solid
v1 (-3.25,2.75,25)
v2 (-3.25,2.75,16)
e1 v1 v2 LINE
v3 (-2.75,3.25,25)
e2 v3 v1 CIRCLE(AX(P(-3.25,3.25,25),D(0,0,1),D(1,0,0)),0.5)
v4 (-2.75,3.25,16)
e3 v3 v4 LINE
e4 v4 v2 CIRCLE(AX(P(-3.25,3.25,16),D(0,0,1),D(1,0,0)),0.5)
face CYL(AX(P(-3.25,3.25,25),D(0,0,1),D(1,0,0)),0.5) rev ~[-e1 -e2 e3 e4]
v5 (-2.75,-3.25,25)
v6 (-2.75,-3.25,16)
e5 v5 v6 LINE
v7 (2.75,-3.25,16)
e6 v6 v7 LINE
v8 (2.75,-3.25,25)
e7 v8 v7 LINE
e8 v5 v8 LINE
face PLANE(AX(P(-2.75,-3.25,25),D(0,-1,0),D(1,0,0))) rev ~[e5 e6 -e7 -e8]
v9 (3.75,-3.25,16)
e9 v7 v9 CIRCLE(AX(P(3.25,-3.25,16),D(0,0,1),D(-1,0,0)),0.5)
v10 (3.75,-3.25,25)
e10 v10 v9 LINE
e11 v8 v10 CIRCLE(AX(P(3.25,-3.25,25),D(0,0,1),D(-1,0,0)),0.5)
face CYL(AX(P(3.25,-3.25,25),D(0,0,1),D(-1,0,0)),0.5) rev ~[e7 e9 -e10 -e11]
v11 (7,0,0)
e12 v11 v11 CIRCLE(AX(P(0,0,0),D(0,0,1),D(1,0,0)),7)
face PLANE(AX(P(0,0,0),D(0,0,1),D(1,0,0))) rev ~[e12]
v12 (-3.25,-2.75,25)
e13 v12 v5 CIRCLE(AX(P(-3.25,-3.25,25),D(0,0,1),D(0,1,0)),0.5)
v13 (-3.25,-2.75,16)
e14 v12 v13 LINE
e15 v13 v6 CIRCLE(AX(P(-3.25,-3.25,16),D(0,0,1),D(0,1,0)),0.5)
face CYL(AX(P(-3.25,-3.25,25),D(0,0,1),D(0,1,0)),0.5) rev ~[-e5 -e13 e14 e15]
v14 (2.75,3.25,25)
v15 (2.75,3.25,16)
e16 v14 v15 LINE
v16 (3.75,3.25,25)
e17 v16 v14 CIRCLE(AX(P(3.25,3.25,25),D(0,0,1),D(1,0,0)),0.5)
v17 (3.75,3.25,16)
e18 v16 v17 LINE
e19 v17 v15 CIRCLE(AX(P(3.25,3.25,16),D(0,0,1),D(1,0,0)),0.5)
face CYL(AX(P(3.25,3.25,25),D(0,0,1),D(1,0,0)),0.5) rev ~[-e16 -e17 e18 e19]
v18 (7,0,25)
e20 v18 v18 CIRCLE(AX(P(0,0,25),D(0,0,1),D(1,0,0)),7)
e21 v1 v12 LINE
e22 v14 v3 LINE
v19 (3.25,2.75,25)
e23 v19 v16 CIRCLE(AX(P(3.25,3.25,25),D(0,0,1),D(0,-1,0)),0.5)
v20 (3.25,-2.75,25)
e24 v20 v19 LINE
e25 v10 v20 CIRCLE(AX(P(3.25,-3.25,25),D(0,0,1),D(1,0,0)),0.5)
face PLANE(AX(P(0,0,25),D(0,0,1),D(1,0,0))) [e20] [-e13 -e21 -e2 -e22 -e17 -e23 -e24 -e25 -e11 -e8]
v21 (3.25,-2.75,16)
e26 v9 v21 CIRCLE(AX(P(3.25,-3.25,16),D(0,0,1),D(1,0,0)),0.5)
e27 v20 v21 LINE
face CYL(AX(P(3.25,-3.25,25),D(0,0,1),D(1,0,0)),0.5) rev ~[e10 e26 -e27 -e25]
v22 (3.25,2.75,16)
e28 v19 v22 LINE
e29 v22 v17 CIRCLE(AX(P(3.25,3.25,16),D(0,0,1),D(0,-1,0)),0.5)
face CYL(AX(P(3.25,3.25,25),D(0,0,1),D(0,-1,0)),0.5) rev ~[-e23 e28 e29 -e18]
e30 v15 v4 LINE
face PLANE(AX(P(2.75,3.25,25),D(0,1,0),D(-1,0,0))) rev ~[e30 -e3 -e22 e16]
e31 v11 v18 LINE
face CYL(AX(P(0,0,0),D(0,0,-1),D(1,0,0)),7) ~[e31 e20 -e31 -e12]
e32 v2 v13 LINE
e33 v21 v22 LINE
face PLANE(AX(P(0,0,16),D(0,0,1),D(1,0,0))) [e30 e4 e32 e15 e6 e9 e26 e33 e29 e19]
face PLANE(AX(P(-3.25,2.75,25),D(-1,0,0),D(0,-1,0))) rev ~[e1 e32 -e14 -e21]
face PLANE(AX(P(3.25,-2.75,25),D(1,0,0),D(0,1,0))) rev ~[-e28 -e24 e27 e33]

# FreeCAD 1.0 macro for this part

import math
import FreeCAD as App
import Part
import Sketcher

V = App.Vector
Q = App.Units.Quantity

doc = App.newDocument("Part")
body = doc.addObject("PartDesign::Body", "Body")

# Sketch on XY plane
sketch1 = body.newObject("Sketcher::SketchObject", "Sketch")
sketch1.AttachmentSupport = (doc.getObject("XY_Plane"), [""])
sketch1.MapMode = "FlatFace"
sketch1.addGeometry(Part.Circle(V(0, 0, 0), V(0, 0, 1), 7), False)
sketch1.addConstraint([
    Sketcher.Constraint("Coincident", 0, 3, -1, 1),
    Sketcher.Constraint("Diameter", 0, Q("14 mm")),
])
pad1 = body.newObject("PartDesign::Pad", "Pad")
pad1.Profile = sketch1
pad1.Length = 25

# Sketch on XY plane
sketch2 = body.newObject("Sketcher::SketchObject", "Sketch001")
sketch2.AttachmentSupport = (doc.getObject("XY_Plane"), [""])
sketch2.MapMode = "FlatFace"
sketch2.AttachmentOffset = App.Placement(V(0, 0, 25), App.Rotation())
sketch2.addGeometry([
    Part.ArcOfCircle(Part.Circle(V(-3.25, 3.25, 0), V(0, 0, 1), 0.5), math.radians(0), math.radians(270)),  # 0
    Part.LineSegment(V(-3.25, 2.75, 0), V(-3.25, -2.75, 0)),  # 1
    Part.ArcOfCircle(Part.Circle(V(-3.25, -3.25, 0), V(0, 0, 1), 0.5), math.radians(90), math.radians(360)),  # 2
    Part.LineSegment(V(-2.75, -3.25, 0), V(2.75, -3.25, 0)),  # 3
    Part.ArcOfCircle(Part.Circle(V(3.25, -3.25, 0), V(0, 0, 1), 0.5), math.radians(180), math.radians(360)),  # 4
    Part.ArcOfCircle(Part.Circle(V(3.25, -3.25, 0), V(0, 0, 1), 0.5), math.radians(0), math.radians(90)),  # 5
    Part.LineSegment(V(3.25, -2.75, 0), V(3.25, 2.75, 0)),  # 6
    Part.ArcOfCircle(Part.Circle(V(3.25, 3.25, 0), V(0, 0, 1), 0.5), math.radians(-90), math.radians(0)),  # 7
    Part.ArcOfCircle(Part.Circle(V(3.25, 3.25, 0), V(0, 0, 1), 0.5), math.radians(0), math.radians(180)),  # 8
    Part.LineSegment(V(2.75, 3.25, 0), V(-2.75, 3.25, 0)),  # 9
], False)
sketch2.addConstraint([
    Sketcher.Constraint("Coincident", 0, 2, 1, 1),
    Sketcher.Constraint("Coincident", 1, 2, 2, 1),
    Sketcher.Constraint("Coincident", 2, 2, 3, 1),
    Sketcher.Constraint("Coincident", 3, 2, 4, 1),
    Sketcher.Constraint("Tangent", 4, 2, 5, 1),
    Sketcher.Constraint("Coincident", 5, 2, 6, 1),
    Sketcher.Constraint("Coincident", 6, 2, 7, 1),
    Sketcher.Constraint("Tangent", 7, 2, 8, 1),
    Sketcher.Constraint("Coincident", 8, 2, 9, 1),
    Sketcher.Constraint("Coincident", 9, 2, 0, 1),
    Sketcher.Constraint("Vertical", 1),
    Sketcher.Constraint("Horizontal", 3),
    Sketcher.Constraint("Vertical", 6),
    Sketcher.Constraint("Horizontal", 9),
    Sketcher.Constraint("Equal", 0, 2),
    Sketcher.Constraint("Equal", 2, 4),
    Sketcher.Constraint("Equal", 4, 5),
    Sketcher.Constraint("Equal", 5, 7),
    Sketcher.Constraint("Equal", 7, 8),
    Sketcher.Constraint("Symmetric", 0, 3, 4, 3, -1, 1),
    Sketcher.Constraint("Symmetric", 2, 3, 7, 3, -1, 1),
    Sketcher.Constraint("Symmetric", 2, 3, 4, 3, -2),
    Sketcher.Constraint("Horizontal", 5, 3, 2, 2),
    Sketcher.Constraint("Horizontal", 3, 2, 4, 2),
    Sketcher.Constraint("Horizontal", 8, 3, 7, 2),
    Sketcher.Constraint("Horizontal", 7, 2, 8, 2),
    Sketcher.Constraint("Vertical", 2, 3, 0, 2),
    Sketcher.Constraint("Vertical", 8, 3, 5, 2),
    Sketcher.Constraint("Equal", 9, 1),
    Sketcher.Constraint("Radius", 0, Q("0.5 mm")),
    Sketcher.Constraint("DistanceX", 3, 1, 3, 2, Q("5.5 mm")),
])
pocket1 = body.newObject("PartDesign::Pocket", "Pocket")
pocket1.Profile = sketch2
pocket1.Length = 9

doc.recompute()
